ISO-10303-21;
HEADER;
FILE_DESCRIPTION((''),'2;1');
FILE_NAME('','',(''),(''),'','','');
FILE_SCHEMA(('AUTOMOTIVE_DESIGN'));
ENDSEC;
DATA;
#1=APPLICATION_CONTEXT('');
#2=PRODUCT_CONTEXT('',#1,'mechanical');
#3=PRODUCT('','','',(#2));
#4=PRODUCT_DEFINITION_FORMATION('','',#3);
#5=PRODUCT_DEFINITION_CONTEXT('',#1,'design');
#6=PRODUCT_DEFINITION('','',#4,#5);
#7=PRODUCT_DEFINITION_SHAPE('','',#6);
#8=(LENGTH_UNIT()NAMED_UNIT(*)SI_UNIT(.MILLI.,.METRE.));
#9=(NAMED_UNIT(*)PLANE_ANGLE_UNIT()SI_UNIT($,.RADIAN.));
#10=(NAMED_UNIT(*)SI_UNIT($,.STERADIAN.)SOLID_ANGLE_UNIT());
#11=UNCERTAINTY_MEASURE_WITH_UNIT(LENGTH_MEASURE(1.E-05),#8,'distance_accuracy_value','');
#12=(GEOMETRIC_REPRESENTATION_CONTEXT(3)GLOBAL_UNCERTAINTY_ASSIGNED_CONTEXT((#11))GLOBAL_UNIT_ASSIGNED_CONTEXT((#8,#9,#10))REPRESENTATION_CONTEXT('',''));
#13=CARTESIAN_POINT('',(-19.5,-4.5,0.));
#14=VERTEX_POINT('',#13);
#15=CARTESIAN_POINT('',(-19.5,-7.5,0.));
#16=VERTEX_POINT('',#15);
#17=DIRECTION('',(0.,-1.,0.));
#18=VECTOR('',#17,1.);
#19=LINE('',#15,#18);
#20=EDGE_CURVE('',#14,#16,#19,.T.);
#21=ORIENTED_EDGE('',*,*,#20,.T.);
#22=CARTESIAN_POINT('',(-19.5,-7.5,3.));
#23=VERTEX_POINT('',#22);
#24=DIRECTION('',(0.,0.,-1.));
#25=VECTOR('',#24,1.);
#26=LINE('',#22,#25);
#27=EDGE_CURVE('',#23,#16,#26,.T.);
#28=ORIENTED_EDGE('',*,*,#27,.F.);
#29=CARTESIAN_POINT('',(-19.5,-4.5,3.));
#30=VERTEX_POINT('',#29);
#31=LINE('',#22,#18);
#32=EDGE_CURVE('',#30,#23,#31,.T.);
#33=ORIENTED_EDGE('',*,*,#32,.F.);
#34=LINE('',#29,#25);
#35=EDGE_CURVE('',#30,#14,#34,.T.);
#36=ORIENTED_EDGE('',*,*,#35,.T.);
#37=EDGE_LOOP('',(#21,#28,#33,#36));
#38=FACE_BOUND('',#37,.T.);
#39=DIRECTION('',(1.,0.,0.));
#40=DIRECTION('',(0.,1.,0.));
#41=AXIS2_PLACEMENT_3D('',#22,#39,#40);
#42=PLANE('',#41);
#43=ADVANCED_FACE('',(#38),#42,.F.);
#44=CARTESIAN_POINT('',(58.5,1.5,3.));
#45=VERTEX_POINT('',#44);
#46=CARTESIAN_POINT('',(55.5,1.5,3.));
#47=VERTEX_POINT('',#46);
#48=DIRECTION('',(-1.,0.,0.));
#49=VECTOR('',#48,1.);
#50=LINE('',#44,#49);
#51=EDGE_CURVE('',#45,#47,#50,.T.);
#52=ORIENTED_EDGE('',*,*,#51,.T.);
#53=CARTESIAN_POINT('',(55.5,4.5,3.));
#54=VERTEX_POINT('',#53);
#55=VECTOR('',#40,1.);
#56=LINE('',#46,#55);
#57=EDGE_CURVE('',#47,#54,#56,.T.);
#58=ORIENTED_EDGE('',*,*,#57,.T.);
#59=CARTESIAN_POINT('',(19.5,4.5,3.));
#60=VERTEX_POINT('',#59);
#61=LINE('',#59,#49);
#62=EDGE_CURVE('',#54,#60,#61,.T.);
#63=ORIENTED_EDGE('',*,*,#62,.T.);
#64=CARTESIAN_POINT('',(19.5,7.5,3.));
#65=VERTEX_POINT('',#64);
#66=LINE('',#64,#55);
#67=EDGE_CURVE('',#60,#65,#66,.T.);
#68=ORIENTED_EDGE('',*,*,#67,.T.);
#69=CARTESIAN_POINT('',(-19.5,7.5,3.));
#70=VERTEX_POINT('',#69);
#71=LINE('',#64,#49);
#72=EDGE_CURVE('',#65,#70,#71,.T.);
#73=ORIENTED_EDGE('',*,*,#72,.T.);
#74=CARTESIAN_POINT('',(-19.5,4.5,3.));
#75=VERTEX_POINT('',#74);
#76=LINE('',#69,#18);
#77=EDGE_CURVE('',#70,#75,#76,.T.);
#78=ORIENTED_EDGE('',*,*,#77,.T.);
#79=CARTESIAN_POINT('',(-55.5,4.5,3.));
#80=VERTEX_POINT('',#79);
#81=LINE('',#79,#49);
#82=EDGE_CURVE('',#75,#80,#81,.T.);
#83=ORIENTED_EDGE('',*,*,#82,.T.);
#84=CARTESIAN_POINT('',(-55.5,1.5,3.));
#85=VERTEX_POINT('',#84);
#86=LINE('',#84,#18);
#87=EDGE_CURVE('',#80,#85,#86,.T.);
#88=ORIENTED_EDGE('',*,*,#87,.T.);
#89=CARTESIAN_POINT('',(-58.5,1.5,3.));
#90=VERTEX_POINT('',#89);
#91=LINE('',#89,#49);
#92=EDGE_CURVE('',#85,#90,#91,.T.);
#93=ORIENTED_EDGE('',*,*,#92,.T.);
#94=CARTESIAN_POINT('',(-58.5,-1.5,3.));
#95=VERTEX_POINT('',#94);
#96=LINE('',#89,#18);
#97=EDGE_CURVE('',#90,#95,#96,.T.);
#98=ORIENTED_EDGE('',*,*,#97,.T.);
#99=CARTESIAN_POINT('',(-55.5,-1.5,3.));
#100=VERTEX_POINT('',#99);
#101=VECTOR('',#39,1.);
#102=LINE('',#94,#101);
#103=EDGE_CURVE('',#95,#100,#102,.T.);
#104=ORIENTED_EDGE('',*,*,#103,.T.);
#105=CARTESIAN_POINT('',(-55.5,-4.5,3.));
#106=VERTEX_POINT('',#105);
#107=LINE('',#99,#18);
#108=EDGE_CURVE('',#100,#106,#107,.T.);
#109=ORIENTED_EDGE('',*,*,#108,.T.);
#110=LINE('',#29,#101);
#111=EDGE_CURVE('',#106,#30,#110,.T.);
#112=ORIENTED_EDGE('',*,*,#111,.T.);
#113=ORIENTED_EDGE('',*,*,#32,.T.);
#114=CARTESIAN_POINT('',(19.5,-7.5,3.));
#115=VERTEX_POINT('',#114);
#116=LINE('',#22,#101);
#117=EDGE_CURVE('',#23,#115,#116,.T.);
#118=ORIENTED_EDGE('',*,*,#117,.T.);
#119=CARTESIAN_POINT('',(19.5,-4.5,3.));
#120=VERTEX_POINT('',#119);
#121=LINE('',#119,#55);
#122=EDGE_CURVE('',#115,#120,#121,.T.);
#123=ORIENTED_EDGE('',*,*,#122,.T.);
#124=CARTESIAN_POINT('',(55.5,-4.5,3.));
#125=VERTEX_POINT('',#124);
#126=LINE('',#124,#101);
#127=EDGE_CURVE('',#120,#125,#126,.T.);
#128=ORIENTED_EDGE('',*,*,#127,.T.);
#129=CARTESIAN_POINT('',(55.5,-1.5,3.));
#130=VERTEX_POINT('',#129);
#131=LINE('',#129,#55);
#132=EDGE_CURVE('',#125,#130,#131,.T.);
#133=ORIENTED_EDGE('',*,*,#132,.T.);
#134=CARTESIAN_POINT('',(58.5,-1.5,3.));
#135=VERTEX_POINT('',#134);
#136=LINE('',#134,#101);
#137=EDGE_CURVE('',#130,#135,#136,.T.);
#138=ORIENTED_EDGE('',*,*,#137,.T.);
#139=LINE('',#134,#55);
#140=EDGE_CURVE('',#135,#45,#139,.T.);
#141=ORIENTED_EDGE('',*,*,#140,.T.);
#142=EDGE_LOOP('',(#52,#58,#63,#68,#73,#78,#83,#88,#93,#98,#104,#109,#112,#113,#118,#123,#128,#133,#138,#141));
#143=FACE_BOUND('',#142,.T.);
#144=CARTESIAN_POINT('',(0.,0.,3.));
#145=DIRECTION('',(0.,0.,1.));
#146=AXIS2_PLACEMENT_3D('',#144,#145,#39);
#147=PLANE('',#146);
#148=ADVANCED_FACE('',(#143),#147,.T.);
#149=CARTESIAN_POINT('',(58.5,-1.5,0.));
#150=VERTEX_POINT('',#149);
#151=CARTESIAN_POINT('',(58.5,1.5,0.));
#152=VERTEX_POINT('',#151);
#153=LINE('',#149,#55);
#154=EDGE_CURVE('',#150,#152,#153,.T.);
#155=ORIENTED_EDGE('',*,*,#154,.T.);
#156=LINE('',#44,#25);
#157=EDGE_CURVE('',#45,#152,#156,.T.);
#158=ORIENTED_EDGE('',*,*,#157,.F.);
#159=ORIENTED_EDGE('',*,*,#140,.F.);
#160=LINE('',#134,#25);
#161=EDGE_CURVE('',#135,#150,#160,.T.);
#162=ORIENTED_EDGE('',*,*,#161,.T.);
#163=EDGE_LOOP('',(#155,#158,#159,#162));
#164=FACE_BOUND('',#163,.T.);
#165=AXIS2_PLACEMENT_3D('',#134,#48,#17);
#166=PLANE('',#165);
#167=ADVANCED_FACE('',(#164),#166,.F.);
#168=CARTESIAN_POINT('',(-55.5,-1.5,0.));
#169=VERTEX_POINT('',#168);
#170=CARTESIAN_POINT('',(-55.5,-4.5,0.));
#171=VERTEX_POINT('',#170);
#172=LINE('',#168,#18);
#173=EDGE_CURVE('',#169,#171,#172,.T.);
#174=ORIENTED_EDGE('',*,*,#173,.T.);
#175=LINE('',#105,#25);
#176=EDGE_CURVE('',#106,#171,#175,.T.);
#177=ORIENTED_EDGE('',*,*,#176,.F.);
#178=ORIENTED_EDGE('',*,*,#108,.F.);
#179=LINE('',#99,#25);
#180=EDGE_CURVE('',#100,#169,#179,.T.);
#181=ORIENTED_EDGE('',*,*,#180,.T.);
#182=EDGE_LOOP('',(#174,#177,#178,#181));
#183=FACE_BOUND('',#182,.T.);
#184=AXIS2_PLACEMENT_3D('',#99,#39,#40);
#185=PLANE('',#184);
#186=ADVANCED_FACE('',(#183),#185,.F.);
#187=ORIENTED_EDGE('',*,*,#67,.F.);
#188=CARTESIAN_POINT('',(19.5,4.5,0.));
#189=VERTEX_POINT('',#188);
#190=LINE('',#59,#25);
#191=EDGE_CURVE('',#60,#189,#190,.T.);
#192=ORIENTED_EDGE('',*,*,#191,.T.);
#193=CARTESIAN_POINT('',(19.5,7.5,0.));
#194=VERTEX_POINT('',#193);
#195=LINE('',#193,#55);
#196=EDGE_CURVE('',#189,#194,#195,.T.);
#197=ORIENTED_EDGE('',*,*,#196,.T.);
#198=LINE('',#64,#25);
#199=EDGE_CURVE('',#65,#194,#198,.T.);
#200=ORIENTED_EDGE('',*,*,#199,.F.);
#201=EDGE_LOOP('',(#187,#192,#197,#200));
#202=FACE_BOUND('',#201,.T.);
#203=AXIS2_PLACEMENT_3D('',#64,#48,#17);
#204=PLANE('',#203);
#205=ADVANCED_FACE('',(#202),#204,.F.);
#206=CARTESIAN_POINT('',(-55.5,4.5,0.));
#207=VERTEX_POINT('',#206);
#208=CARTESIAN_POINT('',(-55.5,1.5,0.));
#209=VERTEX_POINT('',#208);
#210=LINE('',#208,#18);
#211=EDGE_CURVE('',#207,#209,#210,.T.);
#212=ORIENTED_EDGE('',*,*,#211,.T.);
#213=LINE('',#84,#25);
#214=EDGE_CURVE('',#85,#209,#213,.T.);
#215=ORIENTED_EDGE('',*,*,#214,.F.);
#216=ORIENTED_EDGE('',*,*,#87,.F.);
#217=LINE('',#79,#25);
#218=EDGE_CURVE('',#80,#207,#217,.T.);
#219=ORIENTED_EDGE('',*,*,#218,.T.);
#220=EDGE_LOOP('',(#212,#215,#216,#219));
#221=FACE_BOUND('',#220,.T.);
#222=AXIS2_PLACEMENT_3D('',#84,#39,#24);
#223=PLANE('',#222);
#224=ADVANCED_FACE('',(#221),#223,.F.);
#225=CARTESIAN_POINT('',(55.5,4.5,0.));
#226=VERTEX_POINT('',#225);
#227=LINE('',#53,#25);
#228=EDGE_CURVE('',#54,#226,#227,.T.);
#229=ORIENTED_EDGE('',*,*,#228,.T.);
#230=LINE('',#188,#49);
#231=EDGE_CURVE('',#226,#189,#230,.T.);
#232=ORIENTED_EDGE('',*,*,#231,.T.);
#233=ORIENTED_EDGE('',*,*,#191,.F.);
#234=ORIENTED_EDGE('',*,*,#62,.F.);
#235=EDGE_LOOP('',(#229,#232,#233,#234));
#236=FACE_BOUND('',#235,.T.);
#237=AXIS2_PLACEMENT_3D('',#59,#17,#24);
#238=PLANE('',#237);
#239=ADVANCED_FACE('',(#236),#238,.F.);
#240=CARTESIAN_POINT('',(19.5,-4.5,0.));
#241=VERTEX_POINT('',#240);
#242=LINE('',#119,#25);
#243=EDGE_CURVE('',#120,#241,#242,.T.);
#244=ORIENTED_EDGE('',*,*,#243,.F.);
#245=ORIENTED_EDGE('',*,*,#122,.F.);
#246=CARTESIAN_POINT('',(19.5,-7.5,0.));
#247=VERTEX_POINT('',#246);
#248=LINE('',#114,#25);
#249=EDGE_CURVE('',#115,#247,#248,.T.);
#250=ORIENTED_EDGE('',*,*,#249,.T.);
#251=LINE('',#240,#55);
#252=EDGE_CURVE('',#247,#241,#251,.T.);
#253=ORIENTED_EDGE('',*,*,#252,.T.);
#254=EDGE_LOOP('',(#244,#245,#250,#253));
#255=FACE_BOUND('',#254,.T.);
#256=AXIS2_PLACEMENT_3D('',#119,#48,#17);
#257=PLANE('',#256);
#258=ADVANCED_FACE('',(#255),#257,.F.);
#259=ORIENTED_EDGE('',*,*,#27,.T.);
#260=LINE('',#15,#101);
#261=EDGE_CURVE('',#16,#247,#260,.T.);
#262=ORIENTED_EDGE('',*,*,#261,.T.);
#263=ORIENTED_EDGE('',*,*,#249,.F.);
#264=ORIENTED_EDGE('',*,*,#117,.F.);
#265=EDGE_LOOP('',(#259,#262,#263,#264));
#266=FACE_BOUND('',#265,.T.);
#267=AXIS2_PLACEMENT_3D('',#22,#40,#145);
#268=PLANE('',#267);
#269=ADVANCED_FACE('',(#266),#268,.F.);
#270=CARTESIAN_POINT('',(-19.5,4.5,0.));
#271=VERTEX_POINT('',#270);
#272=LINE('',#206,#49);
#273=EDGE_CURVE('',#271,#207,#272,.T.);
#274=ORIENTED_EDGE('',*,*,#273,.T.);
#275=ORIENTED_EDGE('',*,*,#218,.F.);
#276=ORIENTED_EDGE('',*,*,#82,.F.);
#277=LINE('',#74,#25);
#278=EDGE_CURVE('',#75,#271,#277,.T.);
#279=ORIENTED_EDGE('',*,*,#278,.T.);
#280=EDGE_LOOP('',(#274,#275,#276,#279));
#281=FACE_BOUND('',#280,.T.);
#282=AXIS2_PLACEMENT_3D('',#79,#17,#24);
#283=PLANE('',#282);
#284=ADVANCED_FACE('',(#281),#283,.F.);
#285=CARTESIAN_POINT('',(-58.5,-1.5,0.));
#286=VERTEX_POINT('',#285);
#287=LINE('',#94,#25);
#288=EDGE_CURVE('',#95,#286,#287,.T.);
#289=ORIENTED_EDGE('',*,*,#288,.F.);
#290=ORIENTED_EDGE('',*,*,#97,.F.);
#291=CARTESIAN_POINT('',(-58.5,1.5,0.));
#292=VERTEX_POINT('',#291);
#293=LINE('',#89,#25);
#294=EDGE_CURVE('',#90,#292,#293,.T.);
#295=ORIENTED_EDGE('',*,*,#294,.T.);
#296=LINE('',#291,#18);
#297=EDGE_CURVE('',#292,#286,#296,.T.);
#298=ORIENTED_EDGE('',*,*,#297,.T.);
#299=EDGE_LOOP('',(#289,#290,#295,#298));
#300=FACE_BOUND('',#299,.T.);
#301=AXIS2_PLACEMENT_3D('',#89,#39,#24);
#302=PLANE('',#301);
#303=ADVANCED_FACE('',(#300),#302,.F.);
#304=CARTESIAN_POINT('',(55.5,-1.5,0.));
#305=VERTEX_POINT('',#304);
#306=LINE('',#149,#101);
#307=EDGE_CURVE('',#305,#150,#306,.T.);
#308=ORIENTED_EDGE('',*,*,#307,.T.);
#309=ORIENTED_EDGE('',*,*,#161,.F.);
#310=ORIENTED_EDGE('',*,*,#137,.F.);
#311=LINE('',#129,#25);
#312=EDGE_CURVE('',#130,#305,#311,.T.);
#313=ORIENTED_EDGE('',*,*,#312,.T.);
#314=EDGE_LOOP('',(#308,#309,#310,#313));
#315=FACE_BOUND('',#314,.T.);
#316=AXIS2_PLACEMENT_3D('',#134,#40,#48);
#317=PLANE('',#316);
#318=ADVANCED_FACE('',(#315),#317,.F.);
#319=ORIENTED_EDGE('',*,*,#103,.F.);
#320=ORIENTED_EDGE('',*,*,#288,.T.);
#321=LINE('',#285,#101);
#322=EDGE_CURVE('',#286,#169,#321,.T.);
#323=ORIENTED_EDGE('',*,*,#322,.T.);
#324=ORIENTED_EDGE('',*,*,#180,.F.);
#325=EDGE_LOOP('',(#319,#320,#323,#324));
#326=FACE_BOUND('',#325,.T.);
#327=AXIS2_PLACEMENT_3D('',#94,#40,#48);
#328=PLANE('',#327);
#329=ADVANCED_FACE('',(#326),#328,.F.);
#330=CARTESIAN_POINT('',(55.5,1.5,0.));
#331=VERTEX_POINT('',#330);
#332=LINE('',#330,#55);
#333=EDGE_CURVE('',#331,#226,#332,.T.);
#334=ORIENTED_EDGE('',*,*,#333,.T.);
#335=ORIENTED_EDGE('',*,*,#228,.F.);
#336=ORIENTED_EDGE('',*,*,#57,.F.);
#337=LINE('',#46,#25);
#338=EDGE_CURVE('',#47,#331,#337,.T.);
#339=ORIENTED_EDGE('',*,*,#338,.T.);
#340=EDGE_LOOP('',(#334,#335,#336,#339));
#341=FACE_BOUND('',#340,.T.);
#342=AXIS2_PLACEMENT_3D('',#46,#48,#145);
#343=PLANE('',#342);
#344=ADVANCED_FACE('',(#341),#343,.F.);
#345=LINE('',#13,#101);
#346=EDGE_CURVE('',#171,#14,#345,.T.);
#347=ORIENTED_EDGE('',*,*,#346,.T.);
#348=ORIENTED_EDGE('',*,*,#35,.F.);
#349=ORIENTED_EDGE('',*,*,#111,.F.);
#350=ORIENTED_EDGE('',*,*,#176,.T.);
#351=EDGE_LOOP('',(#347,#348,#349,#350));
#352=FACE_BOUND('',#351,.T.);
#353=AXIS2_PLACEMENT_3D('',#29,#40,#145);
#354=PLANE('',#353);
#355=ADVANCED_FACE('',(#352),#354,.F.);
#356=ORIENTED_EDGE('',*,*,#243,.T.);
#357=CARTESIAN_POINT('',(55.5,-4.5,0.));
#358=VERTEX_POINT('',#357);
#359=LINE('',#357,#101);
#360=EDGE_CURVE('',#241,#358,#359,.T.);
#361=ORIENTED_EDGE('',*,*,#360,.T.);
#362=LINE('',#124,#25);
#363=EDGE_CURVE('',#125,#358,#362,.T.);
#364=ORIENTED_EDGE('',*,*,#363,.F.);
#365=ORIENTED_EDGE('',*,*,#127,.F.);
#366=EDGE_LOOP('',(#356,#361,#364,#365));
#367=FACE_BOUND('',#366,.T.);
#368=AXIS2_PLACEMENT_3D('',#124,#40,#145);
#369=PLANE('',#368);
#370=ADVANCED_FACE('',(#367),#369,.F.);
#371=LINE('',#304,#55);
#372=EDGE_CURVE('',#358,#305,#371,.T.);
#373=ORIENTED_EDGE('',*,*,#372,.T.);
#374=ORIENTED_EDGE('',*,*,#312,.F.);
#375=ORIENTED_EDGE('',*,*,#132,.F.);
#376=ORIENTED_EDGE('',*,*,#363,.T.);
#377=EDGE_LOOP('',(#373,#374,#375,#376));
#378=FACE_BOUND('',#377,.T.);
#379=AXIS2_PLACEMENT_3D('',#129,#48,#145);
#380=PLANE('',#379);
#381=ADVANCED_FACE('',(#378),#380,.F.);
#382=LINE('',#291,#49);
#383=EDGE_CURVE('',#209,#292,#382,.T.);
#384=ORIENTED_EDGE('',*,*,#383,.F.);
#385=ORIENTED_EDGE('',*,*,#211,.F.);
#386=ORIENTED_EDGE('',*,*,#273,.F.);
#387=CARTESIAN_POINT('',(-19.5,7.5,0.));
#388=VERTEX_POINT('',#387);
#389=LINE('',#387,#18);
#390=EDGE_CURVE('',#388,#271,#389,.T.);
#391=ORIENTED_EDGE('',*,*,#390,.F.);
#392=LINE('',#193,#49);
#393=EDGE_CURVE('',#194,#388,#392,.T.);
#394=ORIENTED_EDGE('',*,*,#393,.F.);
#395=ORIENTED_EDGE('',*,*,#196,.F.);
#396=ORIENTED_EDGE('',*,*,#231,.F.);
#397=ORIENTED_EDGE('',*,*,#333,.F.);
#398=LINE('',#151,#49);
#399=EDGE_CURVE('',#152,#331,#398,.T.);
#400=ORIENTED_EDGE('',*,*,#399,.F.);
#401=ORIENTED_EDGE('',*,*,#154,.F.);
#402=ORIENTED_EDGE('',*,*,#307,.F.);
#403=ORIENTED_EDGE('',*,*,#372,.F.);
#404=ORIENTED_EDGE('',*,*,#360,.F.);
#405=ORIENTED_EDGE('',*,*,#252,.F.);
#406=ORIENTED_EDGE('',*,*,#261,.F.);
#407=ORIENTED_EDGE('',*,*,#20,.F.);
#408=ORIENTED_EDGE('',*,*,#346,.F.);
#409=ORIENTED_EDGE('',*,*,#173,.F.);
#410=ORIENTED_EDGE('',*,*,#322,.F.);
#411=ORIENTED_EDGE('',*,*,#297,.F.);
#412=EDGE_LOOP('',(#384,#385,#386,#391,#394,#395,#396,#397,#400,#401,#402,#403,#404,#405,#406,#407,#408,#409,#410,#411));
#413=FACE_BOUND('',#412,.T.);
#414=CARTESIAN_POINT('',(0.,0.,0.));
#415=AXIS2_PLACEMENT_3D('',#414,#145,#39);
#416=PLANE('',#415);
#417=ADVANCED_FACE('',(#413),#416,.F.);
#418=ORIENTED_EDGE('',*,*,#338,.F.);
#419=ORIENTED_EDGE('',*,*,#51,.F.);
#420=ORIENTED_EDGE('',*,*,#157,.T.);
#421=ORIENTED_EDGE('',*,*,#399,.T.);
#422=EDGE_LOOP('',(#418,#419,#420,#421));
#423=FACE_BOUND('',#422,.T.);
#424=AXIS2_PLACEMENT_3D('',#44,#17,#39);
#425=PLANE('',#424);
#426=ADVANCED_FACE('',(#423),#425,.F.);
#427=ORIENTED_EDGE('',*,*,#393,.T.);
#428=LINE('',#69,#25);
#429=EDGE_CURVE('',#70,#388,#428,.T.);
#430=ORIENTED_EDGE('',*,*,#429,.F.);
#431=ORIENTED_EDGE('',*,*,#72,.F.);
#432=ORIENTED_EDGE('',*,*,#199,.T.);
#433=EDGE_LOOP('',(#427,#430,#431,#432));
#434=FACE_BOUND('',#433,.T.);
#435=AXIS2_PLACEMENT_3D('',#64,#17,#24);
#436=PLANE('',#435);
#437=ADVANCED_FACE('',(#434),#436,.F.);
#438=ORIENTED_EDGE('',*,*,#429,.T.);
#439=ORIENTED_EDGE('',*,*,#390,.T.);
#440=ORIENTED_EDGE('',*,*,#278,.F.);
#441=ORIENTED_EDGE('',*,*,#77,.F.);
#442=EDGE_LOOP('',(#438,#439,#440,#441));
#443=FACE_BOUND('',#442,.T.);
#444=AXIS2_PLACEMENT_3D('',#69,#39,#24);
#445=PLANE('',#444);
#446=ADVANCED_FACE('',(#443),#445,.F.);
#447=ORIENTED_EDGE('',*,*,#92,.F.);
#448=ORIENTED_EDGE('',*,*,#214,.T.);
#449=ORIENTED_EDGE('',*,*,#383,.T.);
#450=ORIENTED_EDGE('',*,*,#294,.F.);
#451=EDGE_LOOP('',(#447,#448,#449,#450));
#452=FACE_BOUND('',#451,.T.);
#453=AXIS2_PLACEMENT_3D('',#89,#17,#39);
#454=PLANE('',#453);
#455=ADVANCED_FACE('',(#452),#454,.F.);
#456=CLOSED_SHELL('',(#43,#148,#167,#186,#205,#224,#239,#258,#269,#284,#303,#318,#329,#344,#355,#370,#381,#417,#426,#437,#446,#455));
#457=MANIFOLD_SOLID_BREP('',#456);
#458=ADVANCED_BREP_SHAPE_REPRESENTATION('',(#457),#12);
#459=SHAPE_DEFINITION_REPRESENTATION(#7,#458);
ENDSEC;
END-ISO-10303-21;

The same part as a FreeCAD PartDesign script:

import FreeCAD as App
import Part
import Sketcher
from FreeCAD import Vector
Q = App.Units.Quantity


def add_polygon(sketch, points):
    """Adds a closed chain of lines whose ends are joined by coincident constraints."""
    first, n = sketch.GeometryCount, len(points)
    for a, b in zip(points, points[1:] + points[:1]):
        sketch.addGeometry(Part.LineSegment(App.Vector(*a, 0), App.Vector(*b, 0)), False)
    for i in range(n):
        sketch.addConstraint(Sketcher.Constraint("Coincident", first + i, 2, first + (i + 1) % n, 1))

doc = App.newDocument("Part")
body = doc.addObject("PartDesign::Body", "Body")

# Sketch on XY plane
sketch1 = body.newObject("Sketcher::SketchObject", "Sketch")
sketch1.AttachmentSupport = (doc.getObject("XY_Plane"), [""])
sketch1.MapMode = "FlatFace"
add_polygon(sketch1, [(-19.5, -7.5), (19.5, -7.5), (19.5, -4.5), (55.5, -4.5), (55.5, -1.5), (58.5, -1.5), (58.5, 1.5), (55.5, 1.5), (55.5, 4.5), (19.5, 4.5), (19.5, 7.5), (-19.5, 7.5), (-19.5, 4.5), (-55.5, 4.5), (-55.5, 1.5), (-58.5, 1.5), (-58.5, -1.5), (-55.5, -1.5), (-55.5, -4.5), (-19.5, -4.5)])  # lines 0-19
sketch1.addConstraint([
    Sketcher.Constraint("Horizontal", 0),
    Sketcher.Constraint("Vertical", 1),
    Sketcher.Constraint("Horizontal", 2),
    Sketcher.Constraint("Vertical", 3),
    Sketcher.Constraint("Horizontal", 4),
    Sketcher.Constraint("Vertical", 5),
    Sketcher.Constraint("Horizontal", 6),
    Sketcher.Constraint("Vertical", 7),
    Sketcher.Constraint("Horizontal", 8),
    Sketcher.Constraint("Vertical", 9),
    Sketcher.Constraint("Horizontal", 10),
    Sketcher.Constraint("Vertical", 11),
    Sketcher.Constraint("Horizontal", 12),
    Sketcher.Constraint("Vertical", 13),
    Sketcher.Constraint("Horizontal", 14),
    Sketcher.Constraint("Vertical", 15),
    Sketcher.Constraint("Horizontal", 16),
    Sketcher.Constraint("Vertical", 17),
    Sketcher.Constraint("Horizontal", 18),
    Sketcher.Constraint("Vertical", 19),
    Sketcher.Constraint("Symmetric", 0, 2, 10, 2, -1, 1),
    Sketcher.Constraint("Symmetric", 2, 2, 12, 2, -1, 1),
    Sketcher.Constraint("Symmetric", 4, 2, 14, 2, -1, 1),
    Sketcher.Constraint("Symmetric", 6, 2, 16, 2, -1, 1),
    Sketcher.Constraint("Symmetric", 8, 2, 18, 2, -1, 1),
    Sketcher.Constraint("Symmetric", 8, 2, 11, 2, -2),
    Sketcher.Constraint("Symmetric", 6, 2, 13, 2, -2),
    Sketcher.Constraint("Equal", 16, 1),
    Sketcher.Constraint("Equal", 1, 3),
    Sketcher.Constraint("Equal", 3, 5),
    Sketcher.Constraint("DistanceX", 0, 1, 0, 2, Q("39 mm")),
    Sketcher.Constraint("DistanceX", 2, 1, 2, 2, Q("36 mm")),
    Sketcher.Constraint("DistanceX", 4, 1, 4, 2, Q("3 mm")),
])
pad1 = body.newObject("PartDesign::Pad", "Pad")
pad1.Profile = sketch1
pad1.Length = 3

doc.recompute()
